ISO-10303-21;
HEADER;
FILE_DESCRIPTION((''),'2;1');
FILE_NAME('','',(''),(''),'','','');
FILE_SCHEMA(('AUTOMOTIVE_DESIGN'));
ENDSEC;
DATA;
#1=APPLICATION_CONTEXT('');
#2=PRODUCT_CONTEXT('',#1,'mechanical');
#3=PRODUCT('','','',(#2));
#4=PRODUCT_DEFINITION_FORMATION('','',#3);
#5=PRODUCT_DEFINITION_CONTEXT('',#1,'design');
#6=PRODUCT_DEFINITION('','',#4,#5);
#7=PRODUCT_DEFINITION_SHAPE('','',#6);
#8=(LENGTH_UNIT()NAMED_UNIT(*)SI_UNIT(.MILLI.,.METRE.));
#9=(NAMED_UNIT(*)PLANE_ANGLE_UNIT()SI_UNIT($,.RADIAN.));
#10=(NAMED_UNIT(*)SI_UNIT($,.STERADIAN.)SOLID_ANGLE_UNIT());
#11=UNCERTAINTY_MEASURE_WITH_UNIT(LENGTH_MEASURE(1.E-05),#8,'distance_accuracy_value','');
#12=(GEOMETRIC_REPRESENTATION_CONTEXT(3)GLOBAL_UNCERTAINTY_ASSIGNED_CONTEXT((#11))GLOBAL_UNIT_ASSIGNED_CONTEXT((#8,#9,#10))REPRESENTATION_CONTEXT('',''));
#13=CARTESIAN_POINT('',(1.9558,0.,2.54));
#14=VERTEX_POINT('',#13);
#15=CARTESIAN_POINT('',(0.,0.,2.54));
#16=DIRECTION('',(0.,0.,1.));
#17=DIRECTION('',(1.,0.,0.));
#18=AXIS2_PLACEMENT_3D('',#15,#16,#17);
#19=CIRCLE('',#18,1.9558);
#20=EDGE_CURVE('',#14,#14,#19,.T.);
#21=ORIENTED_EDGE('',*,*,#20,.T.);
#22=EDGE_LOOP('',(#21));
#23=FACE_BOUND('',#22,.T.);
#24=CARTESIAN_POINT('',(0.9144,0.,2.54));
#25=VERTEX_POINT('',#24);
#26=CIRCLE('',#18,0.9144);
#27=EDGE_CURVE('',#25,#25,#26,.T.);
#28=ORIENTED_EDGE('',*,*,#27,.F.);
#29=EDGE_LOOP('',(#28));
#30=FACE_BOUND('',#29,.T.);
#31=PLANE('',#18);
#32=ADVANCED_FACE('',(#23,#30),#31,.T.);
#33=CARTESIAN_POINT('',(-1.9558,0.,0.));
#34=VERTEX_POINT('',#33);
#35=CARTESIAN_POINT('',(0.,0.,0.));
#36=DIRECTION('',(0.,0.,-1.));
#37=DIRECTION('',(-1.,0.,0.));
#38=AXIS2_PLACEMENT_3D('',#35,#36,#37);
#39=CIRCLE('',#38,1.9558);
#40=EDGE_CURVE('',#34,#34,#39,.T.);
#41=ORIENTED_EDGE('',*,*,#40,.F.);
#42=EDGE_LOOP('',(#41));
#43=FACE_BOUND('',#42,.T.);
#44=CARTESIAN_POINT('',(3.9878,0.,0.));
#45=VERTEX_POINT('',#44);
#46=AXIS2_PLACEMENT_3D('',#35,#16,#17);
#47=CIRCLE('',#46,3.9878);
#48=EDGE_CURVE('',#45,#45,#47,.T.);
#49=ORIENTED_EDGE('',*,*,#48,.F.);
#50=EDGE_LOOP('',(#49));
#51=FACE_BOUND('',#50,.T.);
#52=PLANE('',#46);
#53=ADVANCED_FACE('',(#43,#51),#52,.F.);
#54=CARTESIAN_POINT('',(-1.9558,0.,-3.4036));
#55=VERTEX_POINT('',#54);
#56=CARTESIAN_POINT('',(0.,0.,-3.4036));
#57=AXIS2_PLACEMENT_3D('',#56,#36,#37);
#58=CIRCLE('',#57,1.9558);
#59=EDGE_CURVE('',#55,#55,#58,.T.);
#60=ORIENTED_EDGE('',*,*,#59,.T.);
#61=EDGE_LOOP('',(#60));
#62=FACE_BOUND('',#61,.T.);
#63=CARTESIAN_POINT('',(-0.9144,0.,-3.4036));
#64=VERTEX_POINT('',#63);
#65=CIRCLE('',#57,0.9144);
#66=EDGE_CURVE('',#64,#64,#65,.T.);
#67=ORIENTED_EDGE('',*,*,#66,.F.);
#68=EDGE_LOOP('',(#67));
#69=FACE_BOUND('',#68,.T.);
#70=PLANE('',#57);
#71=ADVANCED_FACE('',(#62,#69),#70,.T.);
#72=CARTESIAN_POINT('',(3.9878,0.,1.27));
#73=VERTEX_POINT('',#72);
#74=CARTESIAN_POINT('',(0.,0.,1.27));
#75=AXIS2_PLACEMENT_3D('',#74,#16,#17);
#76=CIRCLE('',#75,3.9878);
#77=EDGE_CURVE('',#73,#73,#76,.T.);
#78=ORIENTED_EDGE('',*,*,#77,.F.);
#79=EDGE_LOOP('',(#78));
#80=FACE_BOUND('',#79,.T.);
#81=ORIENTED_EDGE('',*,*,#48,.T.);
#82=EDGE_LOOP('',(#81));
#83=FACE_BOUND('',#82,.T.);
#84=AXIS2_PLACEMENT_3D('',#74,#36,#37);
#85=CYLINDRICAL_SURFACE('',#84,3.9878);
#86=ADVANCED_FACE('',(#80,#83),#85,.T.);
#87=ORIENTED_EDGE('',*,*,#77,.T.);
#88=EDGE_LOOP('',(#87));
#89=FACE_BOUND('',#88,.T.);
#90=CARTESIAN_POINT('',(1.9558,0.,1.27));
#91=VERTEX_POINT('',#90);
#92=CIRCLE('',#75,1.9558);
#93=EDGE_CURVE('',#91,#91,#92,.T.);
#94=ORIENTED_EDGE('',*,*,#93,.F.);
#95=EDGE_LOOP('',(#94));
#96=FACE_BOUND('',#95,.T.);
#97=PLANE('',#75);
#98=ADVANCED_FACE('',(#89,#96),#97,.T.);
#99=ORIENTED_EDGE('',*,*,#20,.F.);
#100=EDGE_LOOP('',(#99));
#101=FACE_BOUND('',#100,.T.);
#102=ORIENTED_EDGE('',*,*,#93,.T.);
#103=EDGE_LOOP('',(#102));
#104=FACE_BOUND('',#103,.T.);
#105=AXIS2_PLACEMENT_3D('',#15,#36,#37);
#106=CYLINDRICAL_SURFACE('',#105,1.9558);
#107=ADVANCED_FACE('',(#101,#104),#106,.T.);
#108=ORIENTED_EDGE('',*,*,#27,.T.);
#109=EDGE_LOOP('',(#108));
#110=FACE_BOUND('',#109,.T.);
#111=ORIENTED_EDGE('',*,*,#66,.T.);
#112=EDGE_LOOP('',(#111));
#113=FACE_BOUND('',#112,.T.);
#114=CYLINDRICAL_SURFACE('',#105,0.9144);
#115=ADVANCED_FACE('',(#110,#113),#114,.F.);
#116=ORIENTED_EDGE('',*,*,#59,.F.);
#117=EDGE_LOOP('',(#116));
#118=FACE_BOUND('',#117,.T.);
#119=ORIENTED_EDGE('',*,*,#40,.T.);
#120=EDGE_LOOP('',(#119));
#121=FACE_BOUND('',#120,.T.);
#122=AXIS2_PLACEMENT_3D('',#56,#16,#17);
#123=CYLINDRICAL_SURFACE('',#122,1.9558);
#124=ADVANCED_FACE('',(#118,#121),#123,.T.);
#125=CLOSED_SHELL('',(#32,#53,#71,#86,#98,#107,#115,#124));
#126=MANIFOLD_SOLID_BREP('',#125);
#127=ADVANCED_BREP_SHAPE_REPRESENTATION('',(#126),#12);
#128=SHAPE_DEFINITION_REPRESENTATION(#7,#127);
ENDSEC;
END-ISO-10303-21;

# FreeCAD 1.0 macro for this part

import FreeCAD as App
import Part
import Sketcher
from FreeCAD import Vector
Q = App.Units.Quantity

doc = App.newDocument("Part")
body = doc.addObject("PartDesign::Body", "Body")

# Sketch on XY plane
sketch1 = doc.addObject("Sketcher::SketchObject", "Sketch")
body.addObject(sketch1)
sketch1.AttachmentSupport = (doc.XY_Plane, [""])
sketch1.MapMode = "FlatFace"
sketch1.addGeometry(Part.Circle(Vector(0, 0, 0), Vector(0, 0, 1), 4), False)
sketch1.addConstraint(Sketcher.Constraint("Coincident", 0, 3, -1, 1))
sketch1.addConstraint(Sketcher.Constraint("Diameter", 0, Q("0.314 in")))
pad1 = doc.addObject("PartDesign::Pad", "Pad")
body.addObject(pad1)
pad1.Profile = sketch1
pad1.Length = Q("0.05 in")

# Sketch on XY plane
sketch2 = doc.addObject("Sketcher::SketchObject", "Sketch001")
body.addObject(sketch2)
sketch2.AttachmentSupport = (doc.XY_Plane, [""])
sketch2.MapMode = "FlatFace"
sketch2.AttachmentOffset = App.Placement(Vector(0, 0, 0.05 * 25.4), App.Rotation())
sketch2.addGeometry(Part.Circle(Vector(0, 0, 0), Vector(0, 0, 1), 2), False)
sketch2.addGeometry(Part.Circle(Vector(0, 0, 0), Vector(0, 0, 1), 0.9), False)
sketch2.addConstraint(Sketcher.Constraint("Coincident", 0, 3, -1, 1))
sketch2.addConstraint(Sketcher.Constraint("Coincident", 1, 3, -1, 1))
sketch2.addConstraint(Sketcher.Constraint("Diameter", 0, Q("0.154 in")))
sketch2.addConstraint(Sketcher.Constraint("Diameter", 1, Q("0.072 in")))
pad2 = doc.addObject("PartDesign::Pad", "Pad001")
body.addObject(pad2)
pad2.Profile = sketch2
pad2.Length = Q("0.05 in")

# Sketch on XY plane
sketch3 = doc.addObject("Sketcher::SketchObject", "Sketch002")
body.addObject(sketch3)
sketch3.AttachmentSupport = (doc.XY_Plane, [""])
sketch3.MapMode = "FlatFace"
sketch3.AttachmentOffset = App.Placement(Vector(0, 0, -0.134 * 25.4), App.Rotation())
sketch3.addGeometry(Part.Circle(Vector(0, 0, 0), Vector(0, 0, 1), 2), False)
sketch3.addConstraint(Sketcher.Constraint("Coincident", 0, 3, -1, 1))
sketch3.addConstraint(Sketcher.Constraint("Diameter", 0, Q("0.154 in")))
pad3 = doc.addObject("PartDesign::Pad", "Pad002")
body.addObject(pad3)
pad3.Profile = sketch3
pad3.Length = Q("0.134 in")

# Sketch on XY plane
sketch4 = doc.addObject("Sketcher::SketchObject", "Sketch003")
body.addObject(sketch4)
sketch4.AttachmentSupport = (doc.XY_Plane, [""])
sketch4.MapMode = "FlatFace"
sketch4.AttachmentOffset = App.Placement(Vector(0, 0, -0.134 * 25.4), App.Rotation())
sketch4.addGeometry(Part.Circle(Vector(0, 0, 0), Vector(0, 0, 1), 0.9), False)
sketch4.addConstraint(Sketcher.Constraint("Coincident", 0, 3, -1, 1))
sketch4.addConstraint(Sketcher.Constraint("Diameter", 0, Q("0.072 in")))
pocket1 = doc.addObject("PartDesign::Pocket", "Pocket")
body.addObject(pocket1)
pocket1.Profile = sketch4
pocket1.Type = "ThroughAll"
pocket1.Reversed = True

doc.recompute()
